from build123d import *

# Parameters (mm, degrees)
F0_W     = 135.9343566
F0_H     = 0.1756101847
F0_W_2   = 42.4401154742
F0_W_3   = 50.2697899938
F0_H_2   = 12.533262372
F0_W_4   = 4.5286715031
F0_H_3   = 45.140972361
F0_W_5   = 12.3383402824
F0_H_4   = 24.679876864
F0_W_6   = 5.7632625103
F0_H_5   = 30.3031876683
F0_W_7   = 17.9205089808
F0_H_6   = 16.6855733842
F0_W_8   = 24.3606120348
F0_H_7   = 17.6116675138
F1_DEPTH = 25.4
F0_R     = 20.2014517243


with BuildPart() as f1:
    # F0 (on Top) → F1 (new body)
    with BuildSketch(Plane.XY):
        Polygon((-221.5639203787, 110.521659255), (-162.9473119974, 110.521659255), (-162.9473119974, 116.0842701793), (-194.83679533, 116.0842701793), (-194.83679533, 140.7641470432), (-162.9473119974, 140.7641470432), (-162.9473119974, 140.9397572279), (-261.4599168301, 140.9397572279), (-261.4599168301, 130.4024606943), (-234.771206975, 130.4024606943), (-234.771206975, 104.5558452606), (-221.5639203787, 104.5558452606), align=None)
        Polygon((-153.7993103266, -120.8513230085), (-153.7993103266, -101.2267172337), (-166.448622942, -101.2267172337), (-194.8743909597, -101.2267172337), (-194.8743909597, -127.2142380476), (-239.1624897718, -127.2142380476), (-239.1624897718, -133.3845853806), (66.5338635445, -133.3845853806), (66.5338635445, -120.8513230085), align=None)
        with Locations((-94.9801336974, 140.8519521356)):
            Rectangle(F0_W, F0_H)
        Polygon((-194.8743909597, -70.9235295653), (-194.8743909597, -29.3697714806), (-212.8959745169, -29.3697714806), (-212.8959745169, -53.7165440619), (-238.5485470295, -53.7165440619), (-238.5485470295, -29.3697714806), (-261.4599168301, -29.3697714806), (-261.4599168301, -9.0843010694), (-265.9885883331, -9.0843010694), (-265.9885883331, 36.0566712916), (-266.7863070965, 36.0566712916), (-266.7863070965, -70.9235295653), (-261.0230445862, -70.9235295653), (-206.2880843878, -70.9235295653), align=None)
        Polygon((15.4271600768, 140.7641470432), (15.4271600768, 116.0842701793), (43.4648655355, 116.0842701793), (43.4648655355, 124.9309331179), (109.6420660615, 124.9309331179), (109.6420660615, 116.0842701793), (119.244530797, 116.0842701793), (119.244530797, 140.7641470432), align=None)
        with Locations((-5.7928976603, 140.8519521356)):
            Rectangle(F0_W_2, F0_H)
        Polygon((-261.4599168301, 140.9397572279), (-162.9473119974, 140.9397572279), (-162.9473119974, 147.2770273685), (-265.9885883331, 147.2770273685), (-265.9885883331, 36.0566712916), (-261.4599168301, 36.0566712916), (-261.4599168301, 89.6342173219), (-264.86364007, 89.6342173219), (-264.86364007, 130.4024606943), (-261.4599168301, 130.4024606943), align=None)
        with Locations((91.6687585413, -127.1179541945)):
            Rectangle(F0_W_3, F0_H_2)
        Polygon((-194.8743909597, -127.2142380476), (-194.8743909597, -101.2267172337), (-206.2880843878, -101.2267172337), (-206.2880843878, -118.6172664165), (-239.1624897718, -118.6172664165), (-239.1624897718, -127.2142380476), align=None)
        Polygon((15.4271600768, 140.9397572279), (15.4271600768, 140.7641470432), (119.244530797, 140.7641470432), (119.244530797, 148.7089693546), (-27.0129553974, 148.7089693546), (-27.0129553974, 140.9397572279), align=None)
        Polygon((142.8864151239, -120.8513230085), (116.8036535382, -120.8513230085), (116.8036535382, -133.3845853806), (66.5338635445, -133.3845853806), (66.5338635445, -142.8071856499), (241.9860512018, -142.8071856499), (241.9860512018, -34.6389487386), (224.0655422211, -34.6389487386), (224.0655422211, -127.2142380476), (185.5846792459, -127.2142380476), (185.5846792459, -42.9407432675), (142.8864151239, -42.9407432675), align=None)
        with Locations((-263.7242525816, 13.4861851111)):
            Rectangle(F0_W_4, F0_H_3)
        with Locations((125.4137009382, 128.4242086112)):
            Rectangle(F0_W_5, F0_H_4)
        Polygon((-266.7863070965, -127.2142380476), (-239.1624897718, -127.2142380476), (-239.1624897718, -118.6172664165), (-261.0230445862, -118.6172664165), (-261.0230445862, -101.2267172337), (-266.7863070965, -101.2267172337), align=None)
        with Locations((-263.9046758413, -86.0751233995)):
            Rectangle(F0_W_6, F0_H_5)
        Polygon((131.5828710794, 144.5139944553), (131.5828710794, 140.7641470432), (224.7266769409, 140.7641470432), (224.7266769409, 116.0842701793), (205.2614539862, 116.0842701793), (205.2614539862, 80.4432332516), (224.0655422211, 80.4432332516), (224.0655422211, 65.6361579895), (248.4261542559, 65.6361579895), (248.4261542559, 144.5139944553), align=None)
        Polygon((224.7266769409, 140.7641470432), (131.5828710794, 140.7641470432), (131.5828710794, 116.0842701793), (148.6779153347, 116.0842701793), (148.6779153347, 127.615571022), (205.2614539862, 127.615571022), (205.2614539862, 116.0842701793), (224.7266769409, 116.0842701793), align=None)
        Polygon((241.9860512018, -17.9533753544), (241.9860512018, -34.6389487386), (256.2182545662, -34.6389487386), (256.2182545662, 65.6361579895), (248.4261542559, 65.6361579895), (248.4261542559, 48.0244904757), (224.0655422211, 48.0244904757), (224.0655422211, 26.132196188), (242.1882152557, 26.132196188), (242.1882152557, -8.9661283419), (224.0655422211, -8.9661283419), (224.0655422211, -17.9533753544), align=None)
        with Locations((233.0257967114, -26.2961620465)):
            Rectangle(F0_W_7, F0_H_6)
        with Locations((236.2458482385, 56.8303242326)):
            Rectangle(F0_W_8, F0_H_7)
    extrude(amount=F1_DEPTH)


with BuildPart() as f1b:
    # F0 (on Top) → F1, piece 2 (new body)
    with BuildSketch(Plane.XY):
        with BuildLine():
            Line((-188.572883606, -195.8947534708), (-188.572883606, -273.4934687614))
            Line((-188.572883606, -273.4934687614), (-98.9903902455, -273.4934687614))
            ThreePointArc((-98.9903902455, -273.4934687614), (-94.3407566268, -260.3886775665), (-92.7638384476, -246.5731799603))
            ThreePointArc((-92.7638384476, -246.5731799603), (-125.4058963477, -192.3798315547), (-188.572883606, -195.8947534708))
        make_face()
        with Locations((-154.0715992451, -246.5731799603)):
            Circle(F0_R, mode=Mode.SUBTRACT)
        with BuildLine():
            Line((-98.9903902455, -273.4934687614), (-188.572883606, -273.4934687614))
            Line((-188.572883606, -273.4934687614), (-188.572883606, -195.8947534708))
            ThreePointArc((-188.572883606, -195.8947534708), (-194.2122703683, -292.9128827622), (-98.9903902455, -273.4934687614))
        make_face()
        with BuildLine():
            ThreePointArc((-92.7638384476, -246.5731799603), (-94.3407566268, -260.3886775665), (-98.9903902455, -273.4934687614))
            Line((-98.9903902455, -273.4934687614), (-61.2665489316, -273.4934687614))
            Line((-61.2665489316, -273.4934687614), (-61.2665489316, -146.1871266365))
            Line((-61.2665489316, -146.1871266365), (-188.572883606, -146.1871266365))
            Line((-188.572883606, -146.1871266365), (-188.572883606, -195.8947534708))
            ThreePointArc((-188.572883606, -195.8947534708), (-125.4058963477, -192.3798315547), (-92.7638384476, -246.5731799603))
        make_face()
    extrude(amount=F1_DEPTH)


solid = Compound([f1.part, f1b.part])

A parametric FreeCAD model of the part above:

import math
import FreeCAD as App
import Part
import Sketcher
from FreeCAD import Vector
Q = App.Units.Quantity


def add_polygon(sketch, points):
    """Adds a closed chain of lines whose ends are joined by coincident constraints."""
    first, n = sketch.GeometryCount, len(points)
    for a, b in zip(points, points[1:] + points[:1]):
        sketch.addGeometry(Part.LineSegment(App.Vector(*a, 0), App.Vector(*b, 0)), False)
    for i in range(n):
        sketch.addConstraint(Sketcher.Constraint("Coincident", first + i, 2, first + (i + 1) % n, 1))

doc = App.newDocument("Part")
body = doc.addObject("PartDesign::Body", "Body")

# Sketch on XY plane
sketch1 = body.newObject("Sketcher::SketchObject", "Sketch")
sketch1.AttachmentSupport = (doc.getObject("XY_Plane"), [""])
sketch1.MapMode = "FlatFace"
add_polygon(sketch1, [(256.2, 65.6), (248.4, 65.6), (248.4, 144.5), (131.6, 144.5), (131.6, 140.8), (119.2, 140.8), (119.2, 148.7), (-27, 148.7), (-27, 140.9), (-162.9, 140.9), (-162.9, 147.3), (-266, 147.3), (-266, 36.1), (-266.8, 36.1), (-266.8, -127.2), (-239.2, -127.2), (-239.2, -133.4), (66.5, -133.4), (66.5, -142.8), (242, -142.8), (242, -34.6), (256.2, -34.6)])  # lines 0-21
add_polygon(sketch1, [(224.1, 80.4), (224.1, 26.1), (242.2, 26.1), (242.2, -9), (224.1, -9), (224.1, -127.2), (185.6, -127.2), (185.6, -42.9), (142.9, -42.9), (142.9, -120.9), (-153.8, -120.9), (-153.8, -101.2), (-206.3, -101.2), (-206.3, -118.6), (-261, -118.6), (-261, -101.2), (-261, -70.9), (-194.9, -70.9), (-194.9, -29.4), (-212.9, -29.4), (-212.9, -53.7), (-238.5, -53.7), (-238.5, -29.4), (-261.5, -29.4), (-261.5, 89.6), (-264.9, 89.6), (-264.9, 130.4), (-234.8, 130.4), (-234.8, 104.6), (-221.6, 104.6), (-221.6, 110.5), (-162.9, 110.5), (-162.9, 116.1), (-194.8, 116.1), (-194.8, 140.8), (15.4, 140.8), (15.4, 116.1), (43.5, 116.1), (43.5, 124.9), (109.6, 124.9), (109.6, 116.1), (119.2, 116.1), (131.6, 116.1), (148.7, 116.1), (148.7, 127.6), (205.3, 127.6), (205.3, 80.4)])  # lines 22-68
sketch1.addConstraint(Sketcher.Constraint("Horizontal", 0))
sketch1.addConstraint(Sketcher.Constraint("Vertical", 1))
sketch1.addConstraint(Sketcher.Constraint("Horizontal", 2))
sketch1.addConstraint(Sketcher.Constraint("Vertical", 3))
sketch1.addConstraint(Sketcher.Constraint("Horizontal", 4))
sketch1.addConstraint(Sketcher.Constraint("Vertical", 5))
sketch1.addConstraint(Sketcher.Constraint("Horizontal", 6))
sketch1.addConstraint(Sketcher.Constraint("Vertical", 7))
sketch1.addConstraint(Sketcher.Constraint("Horizontal", 8))
sketch1.addConstraint(Sketcher.Constraint("Vertical", 9))
sketch1.addConstraint(Sketcher.Constraint("Horizontal", 10))
sketch1.addConstraint(Sketcher.Constraint("Vertical", 11))
sketch1.addConstraint(Sketcher.Constraint("Horizontal", 12))
sketch1.addConstraint(Sketcher.Constraint("Vertical", 13))
sketch1.addConstraint(Sketcher.Constraint("Horizontal", 14))
sketch1.addConstraint(Sketcher.Constraint("Vertical", 15))
sketch1.addConstraint(Sketcher.Constraint("Horizontal", 16))
sketch1.addConstraint(Sketcher.Constraint("Vertical", 17))
sketch1.addConstraint(Sketcher.Constraint("Horizontal", 18))
sketch1.addConstraint(Sketcher.Constraint("Vertical", 19))
sketch1.addConstraint(Sketcher.Constraint("Horizontal", 20))
sketch1.addConstraint(Sketcher.Constraint("Vertical", 21))
sketch1.addConstraint(Sketcher.Constraint("Vertical", 22))
sketch1.addConstraint(Sketcher.Constraint("Horizontal", 23))
sketch1.addConstraint(Sketcher.Constraint("Vertical", 24))
sketch1.addConstraint(Sketcher.Constraint("Horizontal", 25))
sketch1.addConstraint(Sketcher.Constraint("Vertical", 26))
sketch1.addConstraint(Sketcher.Constraint("Horizontal", 27))
sketch1.addConstraint(Sketcher.Constraint("Vertical", 28))
sketch1.addConstraint(Sketcher.Constraint("Horizontal", 29))
sketch1.addConstraint(Sketcher.Constraint("Vertical", 30))
sketch1.addConstraint(Sketcher.Constraint("Horizontal", 31))
sketch1.addConstraint(Sketcher.Constraint("Vertical", 32))
sketch1.addConstraint(Sketcher.Constraint("Horizontal", 33))
sketch1.addConstraint(Sketcher.Constraint("Vertical", 34))
sketch1.addConstraint(Sketcher.Constraint("Horizontal", 35))
sketch1.addConstraint(Sketcher.Constraint("Vertical", 36))
sketch1.addConstraint(Sketcher.Constraint("Vertical", 37))
sketch1.addConstraint(Sketcher.Constraint("Horizontal", 38))
sketch1.addConstraint(Sketcher.Constraint("Vertical", 39))
sketch1.addConstraint(Sketcher.Constraint("Horizontal", 40))
sketch1.addConstraint(Sketcher.Constraint("Vertical", 41))
sketch1.addConstraint(Sketcher.Constraint("Horizontal", 42))
sketch1.addConstraint(Sketcher.Constraint("Vertical", 43))
sketch1.addConstraint(Sketcher.Constraint("Horizontal", 44))
sketch1.addConstraint(Sketcher.Constraint("Vertical", 45))
sketch1.addConstraint(Sketcher.Constraint("Horizontal", 46))
sketch1.addConstraint(Sketcher.Constraint("Vertical", 47))
sketch1.addConstraint(Sketcher.Constraint("Horizontal", 48))
sketch1.addConstraint(Sketcher.Constraint("Vertical", 49))
sketch1.addConstraint(Sketcher.Constraint("Horizontal", 50))
sketch1.addConstraint(Sketcher.Constraint("Vertical", 51))
sketch1.addConstraint(Sketcher.Constraint("Horizontal", 52))
sketch1.addConstraint(Sketcher.Constraint("Vertical", 53))
sketch1.addConstraint(Sketcher.Constraint("Horizontal", 54))
sketch1.addConstraint(Sketcher.Constraint("Vertical", 55))
sketch1.addConstraint(Sketcher.Constraint("Horizontal", 56))
sketch1.addConstraint(Sketcher.Constraint("Vertical", 57))
sketch1.addConstraint(Sketcher.Constraint("Horizontal", 58))
sketch1.addConstraint(Sketcher.Constraint("Vertical", 59))
sketch1.addConstraint(Sketcher.Constraint("Horizontal", 60))
sketch1.addConstraint(Sketcher.Constraint("Vertical", 61))
sketch1.addConstraint(Sketcher.Constraint("Horizontal", 62))
sketch1.addConstraint(Sketcher.Constraint("Horizontal", 63))
sketch1.addConstraint(Sketcher.Constraint("Horizontal", 64))
sketch1.addConstraint(Sketcher.Constraint("Vertical", 65))
sketch1.addConstraint(Sketcher.Constraint("Horizontal", 66))
sketch1.addConstraint(Sketcher.Constraint("Vertical", 67))
sketch1.addConstraint(Sketcher.Constraint("Horizontal", 68))
sketch1.addConstraint(Sketcher.Constraint("Horizontal", 14, 2, 26, 2))
sketch1.addConstraint(Sketcher.Constraint("Horizontal", 33, 2, 36, 2))
sketch1.addConstraint(Sketcher.Constraint("Horizontal", 40, 2, 43, 2))
sketch1.addConstraint(Sketcher.Constraint("Horizontal", 4, 2, 55, 2))
sketch1.addConstraint(Sketcher.Constraint("Horizontal", 54, 2, 57, 2))
sketch1.addConstraint(Sketcher.Constraint("Horizontal", 58, 2, 61, 2))
sketch1.addConstraint(Sketcher.Constraint("Vertical", 22, 2, 25, 2))
sketch1.addConstraint(Sketcher.Constraint("Vertical", 9, 2, 52, 2))
sketch1.addConstraint(Sketcher.Constraint("Vertical", 5, 2, 62, 2))
sketch1.addConstraint(Sketcher.Constraint("Vertical", 3, 2, 63, 2))
sketch1.addConstraint(Sketcher.Constraint("DistanceX", 0, 2, 0, 1, 7.7921))
sketch1.addConstraint(Sketcher.Constraint("DistanceX", 60, 1, 60, 2, 66.177201))
sketch1.addConstraint(Sketcher.Constraint("DistanceY", 17, 2, 17, 1, 9.4226))
sketch1.addConstraint(Sketcher.Constraint("DistanceY", 65, 1, 65, 2, 11.531301))
sketch1.addConstraint(Sketcher.Constraint("DistanceX", 4, 2, 4, 1, 12.33834))
sketch1.addConstraint(Sketcher.Constraint("DistanceX", 12, 2, 12, 1, 0.797719))
sketch1.addConstraint(Sketcher.Constraint("DistanceX", 35, 2, 35, 1, 54.73496))
sketch1.addConstraint(Sketcher.Constraint("DistanceX", 44, 2, 44, 1, 22.91137))
sketch1.addConstraint(Sketcher.Constraint("DistanceX", 52, 1, 52, 2, 58.616608))
sketch1.addConstraint(Sketcher.Constraint("DistanceX", 66, 1, 66, 2, 56.583539))
sketch1.addConstraint(Sketcher.Constraint("DistanceX", 68, 1, 68, 2, 18.804088))
sketch1.addConstraint(Sketcher.Constraint("DistanceY", 9, 1, 9, 2, 6.33727))
sketch1.addConstraint(Sketcher.Constraint("DistanceY", 13, 2, 13, 1, 163.270909))
sketch1.addConstraint(Sketcher.Constraint("DistanceY", 26, 2, 26, 1, 118.24811))
sketch1.addConstraint(Sketcher.Constraint("DistanceY", 30, 2, 30, 1, 77.91058))
sketch1.addConstraint(Sketcher.Constraint("DistanceY", 34, 2, 34, 1, 17.390549))
sketch1.addConstraint(Sketcher.Constraint("DistanceY", 39, 1, 39, 2, 41.553758))
sketch1.addConstraint(Sketcher.Constraint("DistanceY", 45, 1, 45, 2, 119.003989))
sketch1.addConstraint(Sketcher.Constraint("DistanceY", 53, 1, 53, 2, 5.562611))
sketch1.addConstraint(Sketcher.Constraint("DistanceX", 2, 2, 2, 1, 116.843283))
sketch1.addConstraint(Sketcher.Constraint("DistanceX", 6, 2, 6, 1, 146.257486))
sketch1.addConstraint(Sketcher.Constraint("DistanceX", 8, 2, 8, 1, 135.934357))
sketch1.addConstraint(Sketcher.Constraint("DistanceX", 10, 2, 10, 1, 103.041276))
sketch1.addConstraint(Sketcher.Constraint("DistanceX", 14, 1, 14, 2, 27.623817))
sketch1.addConstraint(Sketcher.Constraint("DistanceX", 16, 1, 16, 2, 305.696353))
sketch1.addConstraint(Sketcher.Constraint("DistanceX", 18, 1, 18, 2, 175.452188))
sketch1.addConstraint(Sketcher.Constraint("DistanceX", 23, 1, 23, 2, 18.122673))
sketch1.addConstraint(Sketcher.Constraint("DistanceX", 27, 2, 27, 1, 38.480863))
sketch1.addConstraint(Sketcher.Constraint("DistanceX", 29, 2, 29, 1, 42.698264))
sketch1.addConstraint(Sketcher.Constraint("DistanceX", 31, 2, 31, 1, 296.685725))
sketch1.addConstraint(Sketcher.Constraint("DistanceX", 33, 2, 33, 1, 52.488774))
sketch1.addConstraint(Sketcher.Constraint("DistanceX", 38, 1, 38, 2, 66.148654))
sketch1.addConstraint(Sketcher.Constraint("DistanceX", 40, 2, 40, 1, 18.021584))
sketch1.addConstraint(Sketcher.Constraint("DistanceX", 42, 2, 42, 1, 25.652573))
sketch1.addConstraint(Sketcher.Constraint("DistanceX", 46, 2, 46, 1, 3.403723))
sketch1.addConstraint(Sketcher.Constraint("DistanceX", 48, 1, 48, 2, 30.092433))
sketch1.addConstraint(Sketcher.Constraint("DistanceX", 50, 1, 50, 2, 13.207287))
sketch1.addConstraint(Sketcher.Constraint("DistanceX", 54, 2, 54, 1, 31.889483))
sketch1.addConstraint(Sketcher.Constraint("DistanceX", 56, 1, 56, 2, 210.263955))
sketch1.addConstraint(Sketcher.Constraint("DistanceX", 58, 1, 58, 2, 28.037705))
sketch1.addConstraint(Sketcher.Constraint("DistanceY", 1, 1, 1, 2, 78.877836))
sketch1.addConstraint(Sketcher.Constraint("DistanceY", 3, 2, 3, 1, 3.749847))
sketch1.addConstraint(Sketcher.Constraint("DistanceY", 5, 1, 5, 2, 7.944822))
sketch1.addConstraint(Sketcher.Constraint("DistanceY", 7, 2, 7, 1, 7.769212))
sketch1.addConstraint(Sketcher.Constraint("DistanceY", 11, 2, 11, 1, 111.220356))
sketch1.addConstraint(Sketcher.Constraint("DistanceY", 15, 2, 15, 1, 6.170347))
sketch1.addConstraint(Sketcher.Constraint("DistanceY", 19, 1, 19, 2, 108.168237))
sketch1.addConstraint(Sketcher.Constraint("DistanceY", 22, 2, 22, 1, 54.311037))
sketch1.addConstraint(Sketcher.Constraint("DistanceY", 24, 2, 24, 1, 35.098325))
sketch1.addConstraint(Sketcher.Constraint("DistanceY", 28, 1, 28, 2, 84.273495))
sketch1.addConstraint(Sketcher.Constraint("DistanceY", 32, 1, 32, 2, 19.624606))
sketch1.addConstraint(Sketcher.Constraint("DistanceY", 37, 1, 37, 2, 30.303188))
sketch1.addConstraint(Sketcher.Constraint("DistanceY", 41, 2, 41, 1, 24.346773))
sketch1.addConstraint(Sketcher.Constraint("DistanceY", 47, 1, 47, 2, 40.768243))
sketch1.addConstraint(Sketcher.Constraint("DistanceY", 49, 2, 49, 1, 25.846615))
sketch1.addConstraint(Sketcher.Constraint("DistanceY", 51, 1, 51, 2, 5.965814))
sketch1.addConstraint(Sketcher.Constraint("DistanceY", 59, 1, 59, 2, 8.846663))
sketch1.addConstraint(Sketcher.Constraint("DistanceX", -1, 1, 2, 2, 131.582871))
sketch1.addConstraint(Sketcher.Constraint("DistanceY", -1, 1, 5, 2, 148.708969))
pad1 = body.newObject("PartDesign::Pad", "Pad")
pad1.Profile = sketch1
pad1.Length = Q("1 in")
body2 = doc.addObject("PartDesign::Body", "Body001")

# Sketch on XY plane
sketch2 = body2.newObject("Sketcher::SketchObject", "Sketch001")
sketch2.AttachmentSupport = (doc.getObject("XY_Plane001"), [""])
sketch2.MapMode = "FlatFace"
sketch2.addGeometry(Part.ArcOfCircle(Part.Circle(Vector(-154, -247, 0), Vector(0, 0, 1), 61), math.radians(124), math.radians(334)), False)
sketch2.addGeometry(Part.LineSegment(Vector(-99, -273, 0), Vector(-61, -273, 0)), False)
sketch2.addGeometry(Part.LineSegment(Vector(-61, -273, 0), Vector(-61, -146, 0)), False)
sketch2.addGeometry(Part.LineSegment(Vector(-61, -146, 0), Vector(-189, -146, 0)), False)
sketch2.addGeometry(Part.LineSegment(Vector(-189, -146, 0), Vector(-189, -196, 0)), False)
sketch2.addGeometry(Part.Circle(Vector(-154, -247, 0), Vector(0, 0, 1), 20), False)
sketch2.addConstraint(Sketcher.Constraint("Coincident", 0, 2, 1, 1))
sketch2.addConstraint(Sketcher.Constraint("Coincident", 1, 2, 2, 1))
sketch2.addConstraint(Sketcher.Constraint("Coincident", 2, 2, 3, 1))
sketch2.addConstraint(Sketcher.Constraint("Coincident", 3, 2, 4, 1))
sketch2.addConstraint(Sketcher.Constraint("Coincident", 4, 2, 0, 1))
sketch2.addConstraint(Sketcher.Constraint("Horizontal", 1))
sketch2.addConstraint(Sketcher.Constraint("Vertical", 2))
sketch2.addConstraint(Sketcher.Constraint("Horizontal", 3))
sketch2.addConstraint(Sketcher.Constraint("Vertical", 4))
sketch2.addConstraint(Sketcher.Constraint("Coincident", 5, 3, 0, 3))
sketch2.addConstraint(Sketcher.Constraint("Radius", 0, 61.307761))
sketch2.addConstraint(Sketcher.Constraint("Diameter", 5, 40.402903))
sketch2.addConstraint(Sketcher.Constraint("DistanceX", 1, 1, 1, 2, 37.723841))
sketch2.addConstraint(Sketcher.Constraint("DistanceX", 0, 3, -1, 1, 154.071599))
sketch2.addConstraint(Sketcher.Constraint("DistanceX", 3, 2, 3, 1, 127.306335))
sketch2.addConstraint(Sketcher.Constraint("DistanceY", 2, 1, 2, 2, 127.306342))
sketch2.addConstraint(Sketcher.Constraint("DistanceY", 4, 2, 4, 1, 49.707627))
sketch2.addConstraint(Sketcher.Constraint("DistanceY", 0, 3, -1, 1, 246.57318))
pad2 = body2.newObject("PartDesign::Pad", "Pad001")
pad2.Profile = sketch2
pad2.Length = Q("1 in")

doc.recompute()
